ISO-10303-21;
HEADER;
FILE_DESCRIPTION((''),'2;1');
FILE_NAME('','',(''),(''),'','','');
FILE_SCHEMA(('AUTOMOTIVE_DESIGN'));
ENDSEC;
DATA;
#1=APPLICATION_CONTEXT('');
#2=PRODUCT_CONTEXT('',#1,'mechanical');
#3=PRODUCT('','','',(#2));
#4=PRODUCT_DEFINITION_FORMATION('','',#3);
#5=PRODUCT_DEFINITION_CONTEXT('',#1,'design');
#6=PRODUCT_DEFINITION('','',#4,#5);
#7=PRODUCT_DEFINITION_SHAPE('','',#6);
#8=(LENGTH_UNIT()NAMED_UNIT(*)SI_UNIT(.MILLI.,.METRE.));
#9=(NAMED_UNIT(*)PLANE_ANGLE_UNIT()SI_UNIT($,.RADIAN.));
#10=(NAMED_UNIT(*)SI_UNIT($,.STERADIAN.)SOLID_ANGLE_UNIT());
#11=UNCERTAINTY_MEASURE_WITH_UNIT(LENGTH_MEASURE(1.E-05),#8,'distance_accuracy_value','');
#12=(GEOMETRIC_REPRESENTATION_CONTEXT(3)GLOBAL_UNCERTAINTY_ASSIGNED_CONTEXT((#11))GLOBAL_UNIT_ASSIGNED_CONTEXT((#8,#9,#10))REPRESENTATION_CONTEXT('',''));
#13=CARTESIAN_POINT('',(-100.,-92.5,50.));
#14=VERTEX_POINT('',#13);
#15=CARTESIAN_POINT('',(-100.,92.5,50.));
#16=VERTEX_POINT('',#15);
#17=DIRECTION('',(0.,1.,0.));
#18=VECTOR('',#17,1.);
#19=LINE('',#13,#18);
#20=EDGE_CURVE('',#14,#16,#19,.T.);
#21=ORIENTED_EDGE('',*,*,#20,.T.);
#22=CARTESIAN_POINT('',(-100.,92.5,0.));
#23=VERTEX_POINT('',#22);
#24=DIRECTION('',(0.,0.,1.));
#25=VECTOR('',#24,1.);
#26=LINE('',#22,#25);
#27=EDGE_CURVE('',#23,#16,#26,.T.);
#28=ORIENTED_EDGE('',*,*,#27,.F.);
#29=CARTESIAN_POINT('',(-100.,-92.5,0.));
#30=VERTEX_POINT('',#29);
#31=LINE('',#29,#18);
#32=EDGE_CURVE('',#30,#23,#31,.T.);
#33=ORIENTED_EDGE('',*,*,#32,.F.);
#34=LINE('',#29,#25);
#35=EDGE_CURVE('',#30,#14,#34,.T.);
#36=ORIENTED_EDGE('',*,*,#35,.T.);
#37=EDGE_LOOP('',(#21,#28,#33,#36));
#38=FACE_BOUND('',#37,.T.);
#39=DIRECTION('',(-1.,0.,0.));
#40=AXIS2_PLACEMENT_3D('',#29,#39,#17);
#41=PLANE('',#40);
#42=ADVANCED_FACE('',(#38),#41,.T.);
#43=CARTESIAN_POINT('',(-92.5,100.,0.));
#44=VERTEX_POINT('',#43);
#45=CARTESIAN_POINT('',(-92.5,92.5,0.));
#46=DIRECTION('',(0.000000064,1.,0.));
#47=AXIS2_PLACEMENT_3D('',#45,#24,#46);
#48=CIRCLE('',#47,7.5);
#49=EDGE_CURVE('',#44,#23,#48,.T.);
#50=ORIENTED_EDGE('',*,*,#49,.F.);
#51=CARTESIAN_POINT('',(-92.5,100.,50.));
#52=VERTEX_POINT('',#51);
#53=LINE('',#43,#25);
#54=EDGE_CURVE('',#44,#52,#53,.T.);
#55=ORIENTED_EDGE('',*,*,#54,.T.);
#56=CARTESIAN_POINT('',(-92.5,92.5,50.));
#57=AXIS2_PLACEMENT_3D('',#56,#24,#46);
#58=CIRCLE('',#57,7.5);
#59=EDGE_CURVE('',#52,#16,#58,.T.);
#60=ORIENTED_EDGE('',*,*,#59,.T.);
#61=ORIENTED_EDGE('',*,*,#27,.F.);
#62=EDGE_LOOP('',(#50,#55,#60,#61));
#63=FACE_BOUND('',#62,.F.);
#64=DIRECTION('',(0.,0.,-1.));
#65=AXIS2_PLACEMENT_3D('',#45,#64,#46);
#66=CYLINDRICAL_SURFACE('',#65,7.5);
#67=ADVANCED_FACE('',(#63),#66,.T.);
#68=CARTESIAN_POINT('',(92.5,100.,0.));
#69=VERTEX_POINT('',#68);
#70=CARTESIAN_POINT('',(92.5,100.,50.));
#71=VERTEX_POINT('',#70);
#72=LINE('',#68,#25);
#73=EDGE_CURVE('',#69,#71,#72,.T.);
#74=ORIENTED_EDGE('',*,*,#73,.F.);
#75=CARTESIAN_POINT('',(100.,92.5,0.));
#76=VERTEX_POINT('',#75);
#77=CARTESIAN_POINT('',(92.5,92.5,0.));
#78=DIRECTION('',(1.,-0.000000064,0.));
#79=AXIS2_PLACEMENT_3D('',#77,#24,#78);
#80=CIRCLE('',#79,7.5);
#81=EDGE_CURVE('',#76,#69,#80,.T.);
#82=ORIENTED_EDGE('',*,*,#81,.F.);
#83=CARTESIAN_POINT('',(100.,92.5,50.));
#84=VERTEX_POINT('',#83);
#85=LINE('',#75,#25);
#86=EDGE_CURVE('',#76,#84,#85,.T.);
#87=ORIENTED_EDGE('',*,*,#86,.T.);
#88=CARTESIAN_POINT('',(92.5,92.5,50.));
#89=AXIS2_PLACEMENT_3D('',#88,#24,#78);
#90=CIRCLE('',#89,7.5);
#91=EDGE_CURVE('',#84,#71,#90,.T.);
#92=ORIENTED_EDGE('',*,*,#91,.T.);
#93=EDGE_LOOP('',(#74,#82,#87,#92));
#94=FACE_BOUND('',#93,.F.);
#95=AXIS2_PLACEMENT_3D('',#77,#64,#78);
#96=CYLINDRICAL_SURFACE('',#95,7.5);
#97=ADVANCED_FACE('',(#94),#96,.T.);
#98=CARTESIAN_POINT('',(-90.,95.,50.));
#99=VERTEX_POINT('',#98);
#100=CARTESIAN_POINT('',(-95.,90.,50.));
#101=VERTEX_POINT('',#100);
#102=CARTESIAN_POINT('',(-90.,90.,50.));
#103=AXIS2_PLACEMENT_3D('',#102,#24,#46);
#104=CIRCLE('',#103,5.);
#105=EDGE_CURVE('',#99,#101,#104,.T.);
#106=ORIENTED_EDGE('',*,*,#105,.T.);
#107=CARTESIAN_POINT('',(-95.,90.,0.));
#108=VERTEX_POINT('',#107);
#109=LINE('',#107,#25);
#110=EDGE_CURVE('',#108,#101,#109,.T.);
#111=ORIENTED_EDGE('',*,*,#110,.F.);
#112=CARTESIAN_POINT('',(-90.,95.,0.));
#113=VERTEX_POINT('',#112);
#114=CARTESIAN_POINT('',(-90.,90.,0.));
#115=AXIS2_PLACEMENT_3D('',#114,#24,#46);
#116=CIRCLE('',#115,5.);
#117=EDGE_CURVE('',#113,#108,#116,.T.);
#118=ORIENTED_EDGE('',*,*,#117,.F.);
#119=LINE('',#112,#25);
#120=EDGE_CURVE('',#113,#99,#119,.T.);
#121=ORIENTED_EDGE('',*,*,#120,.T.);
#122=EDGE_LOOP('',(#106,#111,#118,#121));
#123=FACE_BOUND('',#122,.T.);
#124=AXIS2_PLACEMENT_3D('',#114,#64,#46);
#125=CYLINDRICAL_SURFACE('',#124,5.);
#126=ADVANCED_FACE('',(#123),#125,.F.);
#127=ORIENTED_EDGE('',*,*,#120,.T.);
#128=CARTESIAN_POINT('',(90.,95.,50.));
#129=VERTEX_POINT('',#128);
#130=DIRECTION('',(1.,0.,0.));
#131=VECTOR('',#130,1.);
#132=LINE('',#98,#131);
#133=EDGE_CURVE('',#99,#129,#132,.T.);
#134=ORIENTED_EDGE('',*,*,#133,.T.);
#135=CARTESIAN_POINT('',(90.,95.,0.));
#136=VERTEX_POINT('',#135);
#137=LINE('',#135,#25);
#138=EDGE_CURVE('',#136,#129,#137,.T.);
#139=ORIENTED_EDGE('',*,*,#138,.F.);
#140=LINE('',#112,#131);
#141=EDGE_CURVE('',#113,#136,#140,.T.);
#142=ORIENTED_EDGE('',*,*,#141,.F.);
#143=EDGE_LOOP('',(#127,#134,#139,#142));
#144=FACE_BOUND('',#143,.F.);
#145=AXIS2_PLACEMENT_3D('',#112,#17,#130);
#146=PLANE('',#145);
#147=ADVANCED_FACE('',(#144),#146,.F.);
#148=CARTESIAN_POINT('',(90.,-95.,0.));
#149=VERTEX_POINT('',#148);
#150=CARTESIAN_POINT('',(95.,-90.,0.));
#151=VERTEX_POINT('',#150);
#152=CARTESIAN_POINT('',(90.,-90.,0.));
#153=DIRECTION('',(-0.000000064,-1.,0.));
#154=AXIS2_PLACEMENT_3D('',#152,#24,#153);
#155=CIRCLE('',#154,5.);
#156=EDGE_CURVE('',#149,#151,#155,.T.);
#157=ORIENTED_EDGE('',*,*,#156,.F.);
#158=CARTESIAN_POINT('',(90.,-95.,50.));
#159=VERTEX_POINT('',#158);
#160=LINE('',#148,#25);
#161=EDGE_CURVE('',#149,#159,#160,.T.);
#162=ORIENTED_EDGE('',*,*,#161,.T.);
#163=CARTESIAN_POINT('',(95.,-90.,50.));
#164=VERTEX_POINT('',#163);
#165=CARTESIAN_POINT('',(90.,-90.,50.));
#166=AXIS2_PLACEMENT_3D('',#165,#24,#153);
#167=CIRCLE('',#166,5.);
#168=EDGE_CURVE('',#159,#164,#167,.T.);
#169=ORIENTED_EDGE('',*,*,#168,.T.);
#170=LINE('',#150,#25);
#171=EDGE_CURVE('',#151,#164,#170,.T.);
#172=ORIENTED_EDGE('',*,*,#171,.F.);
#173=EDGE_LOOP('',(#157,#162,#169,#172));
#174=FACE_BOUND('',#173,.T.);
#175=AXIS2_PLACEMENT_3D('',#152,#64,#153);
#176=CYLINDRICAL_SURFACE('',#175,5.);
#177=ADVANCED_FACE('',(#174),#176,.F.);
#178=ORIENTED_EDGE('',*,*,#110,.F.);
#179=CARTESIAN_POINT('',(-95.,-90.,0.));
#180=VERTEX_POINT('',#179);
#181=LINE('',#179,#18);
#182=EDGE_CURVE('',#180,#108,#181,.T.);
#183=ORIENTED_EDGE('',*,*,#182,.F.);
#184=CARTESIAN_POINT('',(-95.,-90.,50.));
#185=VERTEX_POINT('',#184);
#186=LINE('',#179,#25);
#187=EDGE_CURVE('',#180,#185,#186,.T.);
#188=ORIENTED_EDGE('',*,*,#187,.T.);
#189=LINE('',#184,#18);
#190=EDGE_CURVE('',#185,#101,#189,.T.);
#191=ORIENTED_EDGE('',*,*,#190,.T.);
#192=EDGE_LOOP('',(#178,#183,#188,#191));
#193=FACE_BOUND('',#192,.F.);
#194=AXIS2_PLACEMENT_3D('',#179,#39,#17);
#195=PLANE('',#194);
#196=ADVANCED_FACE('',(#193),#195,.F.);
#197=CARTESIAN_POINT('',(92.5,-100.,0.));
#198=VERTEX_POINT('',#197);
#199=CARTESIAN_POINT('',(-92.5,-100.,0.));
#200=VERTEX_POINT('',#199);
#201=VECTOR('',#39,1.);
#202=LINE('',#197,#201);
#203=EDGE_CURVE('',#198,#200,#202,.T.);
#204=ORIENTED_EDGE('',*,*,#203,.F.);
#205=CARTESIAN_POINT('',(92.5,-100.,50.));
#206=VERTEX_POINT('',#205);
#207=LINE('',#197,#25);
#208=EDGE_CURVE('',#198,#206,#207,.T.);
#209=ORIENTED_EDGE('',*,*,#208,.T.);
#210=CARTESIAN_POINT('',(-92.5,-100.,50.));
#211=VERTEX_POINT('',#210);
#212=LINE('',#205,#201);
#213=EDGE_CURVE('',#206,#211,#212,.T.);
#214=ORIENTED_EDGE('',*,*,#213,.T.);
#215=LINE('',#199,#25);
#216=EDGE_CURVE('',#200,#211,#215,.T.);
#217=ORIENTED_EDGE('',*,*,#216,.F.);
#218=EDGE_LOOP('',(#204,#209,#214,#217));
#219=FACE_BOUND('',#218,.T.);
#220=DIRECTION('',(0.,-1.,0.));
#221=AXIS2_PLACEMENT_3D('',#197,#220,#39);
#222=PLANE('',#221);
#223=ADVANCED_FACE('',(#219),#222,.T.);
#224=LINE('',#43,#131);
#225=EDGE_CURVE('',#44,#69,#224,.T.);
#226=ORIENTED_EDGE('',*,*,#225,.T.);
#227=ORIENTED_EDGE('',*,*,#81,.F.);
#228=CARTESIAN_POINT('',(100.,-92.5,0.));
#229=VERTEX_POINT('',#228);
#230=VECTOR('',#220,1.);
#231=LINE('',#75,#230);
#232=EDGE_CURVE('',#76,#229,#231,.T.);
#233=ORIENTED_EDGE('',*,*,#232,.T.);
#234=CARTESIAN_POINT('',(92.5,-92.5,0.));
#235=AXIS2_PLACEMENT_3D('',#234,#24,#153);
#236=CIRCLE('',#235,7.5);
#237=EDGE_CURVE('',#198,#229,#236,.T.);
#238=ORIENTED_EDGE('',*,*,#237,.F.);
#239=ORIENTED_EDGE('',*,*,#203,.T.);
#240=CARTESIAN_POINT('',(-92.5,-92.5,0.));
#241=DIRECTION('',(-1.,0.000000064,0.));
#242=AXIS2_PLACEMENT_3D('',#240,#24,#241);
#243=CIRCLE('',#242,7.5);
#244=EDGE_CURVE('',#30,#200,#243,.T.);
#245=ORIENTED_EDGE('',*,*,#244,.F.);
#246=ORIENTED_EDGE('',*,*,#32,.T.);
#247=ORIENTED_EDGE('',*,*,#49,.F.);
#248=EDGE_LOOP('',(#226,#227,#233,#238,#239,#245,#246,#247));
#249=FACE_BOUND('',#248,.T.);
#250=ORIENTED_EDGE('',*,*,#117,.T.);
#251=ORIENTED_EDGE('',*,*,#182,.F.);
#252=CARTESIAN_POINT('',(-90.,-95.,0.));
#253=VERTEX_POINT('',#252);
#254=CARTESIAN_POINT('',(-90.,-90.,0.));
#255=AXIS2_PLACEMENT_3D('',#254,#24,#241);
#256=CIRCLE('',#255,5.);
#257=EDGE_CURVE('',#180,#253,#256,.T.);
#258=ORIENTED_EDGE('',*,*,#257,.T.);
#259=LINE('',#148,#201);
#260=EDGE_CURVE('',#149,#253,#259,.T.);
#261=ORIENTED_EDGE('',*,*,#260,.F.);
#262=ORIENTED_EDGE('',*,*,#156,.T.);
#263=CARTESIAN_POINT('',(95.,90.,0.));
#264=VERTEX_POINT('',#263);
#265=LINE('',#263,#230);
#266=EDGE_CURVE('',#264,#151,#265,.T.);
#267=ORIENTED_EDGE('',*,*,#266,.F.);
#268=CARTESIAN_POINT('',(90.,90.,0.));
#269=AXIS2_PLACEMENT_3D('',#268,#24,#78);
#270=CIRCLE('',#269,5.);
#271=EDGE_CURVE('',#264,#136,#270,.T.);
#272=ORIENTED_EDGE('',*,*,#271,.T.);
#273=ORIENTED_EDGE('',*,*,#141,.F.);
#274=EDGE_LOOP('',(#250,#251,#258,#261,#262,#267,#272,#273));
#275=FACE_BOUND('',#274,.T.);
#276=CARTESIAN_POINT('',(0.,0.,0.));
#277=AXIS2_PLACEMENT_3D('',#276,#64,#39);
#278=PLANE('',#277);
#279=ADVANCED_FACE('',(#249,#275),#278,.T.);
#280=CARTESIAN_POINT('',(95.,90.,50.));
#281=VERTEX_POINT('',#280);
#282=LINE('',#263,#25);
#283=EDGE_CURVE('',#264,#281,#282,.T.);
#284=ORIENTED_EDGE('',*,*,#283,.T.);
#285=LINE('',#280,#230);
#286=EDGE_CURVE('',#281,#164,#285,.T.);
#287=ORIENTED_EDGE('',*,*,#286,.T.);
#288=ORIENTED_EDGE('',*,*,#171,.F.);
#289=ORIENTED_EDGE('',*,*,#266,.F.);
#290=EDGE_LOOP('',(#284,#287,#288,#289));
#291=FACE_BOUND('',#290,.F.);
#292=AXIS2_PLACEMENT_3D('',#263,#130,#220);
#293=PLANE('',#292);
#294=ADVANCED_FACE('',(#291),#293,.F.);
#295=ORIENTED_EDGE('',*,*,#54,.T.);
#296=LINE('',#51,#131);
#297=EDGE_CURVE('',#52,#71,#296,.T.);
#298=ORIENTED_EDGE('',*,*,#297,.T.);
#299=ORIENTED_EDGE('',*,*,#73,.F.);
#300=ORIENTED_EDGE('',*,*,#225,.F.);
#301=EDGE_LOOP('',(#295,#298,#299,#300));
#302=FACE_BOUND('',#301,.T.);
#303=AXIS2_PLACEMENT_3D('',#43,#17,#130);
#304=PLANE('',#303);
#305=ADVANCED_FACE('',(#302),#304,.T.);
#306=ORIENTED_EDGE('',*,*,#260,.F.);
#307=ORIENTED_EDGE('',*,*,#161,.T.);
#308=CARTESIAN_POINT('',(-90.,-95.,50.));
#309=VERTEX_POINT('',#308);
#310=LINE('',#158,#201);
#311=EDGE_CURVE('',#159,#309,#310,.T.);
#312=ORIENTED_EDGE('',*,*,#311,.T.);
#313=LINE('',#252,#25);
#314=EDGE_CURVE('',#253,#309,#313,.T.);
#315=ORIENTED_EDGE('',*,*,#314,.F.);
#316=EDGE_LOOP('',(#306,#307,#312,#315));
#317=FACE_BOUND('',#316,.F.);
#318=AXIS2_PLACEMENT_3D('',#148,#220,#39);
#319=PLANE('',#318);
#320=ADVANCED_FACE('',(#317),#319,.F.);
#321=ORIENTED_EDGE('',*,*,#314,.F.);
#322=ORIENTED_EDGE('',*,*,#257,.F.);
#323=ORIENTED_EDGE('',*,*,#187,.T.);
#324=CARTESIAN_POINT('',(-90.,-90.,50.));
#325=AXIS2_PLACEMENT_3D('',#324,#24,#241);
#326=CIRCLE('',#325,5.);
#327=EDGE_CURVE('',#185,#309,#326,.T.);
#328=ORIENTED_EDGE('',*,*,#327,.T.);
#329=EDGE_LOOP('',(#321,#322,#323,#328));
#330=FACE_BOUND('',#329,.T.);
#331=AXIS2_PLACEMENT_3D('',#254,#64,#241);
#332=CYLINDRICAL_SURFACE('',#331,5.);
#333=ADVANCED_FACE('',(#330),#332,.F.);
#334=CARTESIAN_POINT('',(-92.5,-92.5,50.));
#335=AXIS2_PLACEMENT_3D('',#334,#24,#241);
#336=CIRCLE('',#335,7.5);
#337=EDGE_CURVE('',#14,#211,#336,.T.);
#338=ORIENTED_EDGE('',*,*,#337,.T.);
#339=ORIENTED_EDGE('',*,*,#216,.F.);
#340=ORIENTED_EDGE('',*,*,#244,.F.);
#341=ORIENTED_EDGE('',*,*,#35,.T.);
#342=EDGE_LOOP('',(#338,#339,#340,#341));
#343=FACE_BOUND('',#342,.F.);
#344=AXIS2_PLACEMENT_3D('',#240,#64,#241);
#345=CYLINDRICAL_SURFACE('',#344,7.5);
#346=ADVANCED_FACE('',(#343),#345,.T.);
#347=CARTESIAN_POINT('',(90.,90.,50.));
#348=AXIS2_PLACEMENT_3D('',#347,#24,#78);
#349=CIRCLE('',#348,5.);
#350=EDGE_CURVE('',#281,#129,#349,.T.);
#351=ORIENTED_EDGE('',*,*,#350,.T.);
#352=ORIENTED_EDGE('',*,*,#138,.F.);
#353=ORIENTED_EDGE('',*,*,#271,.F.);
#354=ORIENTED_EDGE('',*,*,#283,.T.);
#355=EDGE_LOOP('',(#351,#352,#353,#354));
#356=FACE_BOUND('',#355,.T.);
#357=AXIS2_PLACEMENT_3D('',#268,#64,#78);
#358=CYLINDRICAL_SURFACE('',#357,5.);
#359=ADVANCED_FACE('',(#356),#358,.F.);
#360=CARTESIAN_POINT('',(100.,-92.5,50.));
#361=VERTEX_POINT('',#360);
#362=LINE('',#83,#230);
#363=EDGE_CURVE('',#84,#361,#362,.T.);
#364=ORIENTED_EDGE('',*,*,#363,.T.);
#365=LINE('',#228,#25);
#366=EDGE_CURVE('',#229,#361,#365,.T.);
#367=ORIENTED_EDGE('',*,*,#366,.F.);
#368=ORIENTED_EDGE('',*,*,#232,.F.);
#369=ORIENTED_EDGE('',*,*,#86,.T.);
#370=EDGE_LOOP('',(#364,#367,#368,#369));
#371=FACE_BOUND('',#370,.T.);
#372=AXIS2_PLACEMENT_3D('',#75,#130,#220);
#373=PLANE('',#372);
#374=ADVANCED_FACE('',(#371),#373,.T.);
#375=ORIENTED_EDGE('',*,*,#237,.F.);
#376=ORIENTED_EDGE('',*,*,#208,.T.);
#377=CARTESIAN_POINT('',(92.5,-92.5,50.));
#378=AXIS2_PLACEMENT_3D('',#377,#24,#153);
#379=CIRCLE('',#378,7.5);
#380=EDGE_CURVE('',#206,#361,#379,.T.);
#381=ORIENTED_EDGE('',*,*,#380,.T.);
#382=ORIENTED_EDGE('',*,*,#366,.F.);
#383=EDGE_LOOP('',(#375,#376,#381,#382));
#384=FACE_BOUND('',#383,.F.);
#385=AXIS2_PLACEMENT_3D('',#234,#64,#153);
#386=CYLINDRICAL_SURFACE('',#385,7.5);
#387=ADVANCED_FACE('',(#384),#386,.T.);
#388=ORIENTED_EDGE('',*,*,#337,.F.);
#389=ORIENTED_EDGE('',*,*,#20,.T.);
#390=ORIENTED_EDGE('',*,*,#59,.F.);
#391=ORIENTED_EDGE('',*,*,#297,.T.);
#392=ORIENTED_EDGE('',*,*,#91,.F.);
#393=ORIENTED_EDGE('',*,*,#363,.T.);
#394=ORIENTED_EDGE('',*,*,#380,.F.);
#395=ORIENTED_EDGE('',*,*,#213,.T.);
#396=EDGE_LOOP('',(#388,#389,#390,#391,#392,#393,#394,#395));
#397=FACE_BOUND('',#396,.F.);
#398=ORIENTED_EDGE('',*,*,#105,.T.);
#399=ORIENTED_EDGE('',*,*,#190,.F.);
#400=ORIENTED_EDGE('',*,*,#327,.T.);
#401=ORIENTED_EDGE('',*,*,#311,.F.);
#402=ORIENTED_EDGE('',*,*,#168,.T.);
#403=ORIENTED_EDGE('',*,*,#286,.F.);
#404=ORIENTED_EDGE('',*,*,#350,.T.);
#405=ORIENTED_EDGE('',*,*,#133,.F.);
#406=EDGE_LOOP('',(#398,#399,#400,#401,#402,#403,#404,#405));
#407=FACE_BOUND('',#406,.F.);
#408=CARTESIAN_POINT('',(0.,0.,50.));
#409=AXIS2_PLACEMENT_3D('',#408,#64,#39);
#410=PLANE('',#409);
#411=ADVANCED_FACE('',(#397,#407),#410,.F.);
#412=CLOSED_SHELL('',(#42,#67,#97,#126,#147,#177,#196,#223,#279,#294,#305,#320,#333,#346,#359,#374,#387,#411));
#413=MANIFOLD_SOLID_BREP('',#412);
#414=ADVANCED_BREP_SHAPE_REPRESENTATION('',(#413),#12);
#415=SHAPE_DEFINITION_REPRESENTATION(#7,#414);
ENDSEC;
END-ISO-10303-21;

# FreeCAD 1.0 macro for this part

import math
import FreeCAD as App
import Part
import Sketcher

V = App.Vector

doc = App.newDocument("Part")
body = doc.addObject("PartDesign::Body", "Body")

# Sketch on XY plane
sketch1 = doc.addObject("Sketcher::SketchObject", "Sketch")
body.addObject(sketch1)
sketch1.AttachmentSupport = (doc.XY_Plane, [""])
sketch1.MapMode = "FlatFace"
sketch1.addGeometry(Part.LineSegment(V(92.5, 100, 0), V(-92.5, 100, 0)), False)
sketch1.addGeometry(Part.ArcOfCircle(Part.Circle(V(-92.5, 92.5, 0), V(0, 0, 1), 7.5), math.radians(90), math.radians(180)), False)
sketch1.addGeometry(Part.LineSegment(V(-100, 92.5, 0), V(-100, -92.5, 0)), False)
sketch1.addGeometry(Part.ArcOfCircle(Part.Circle(V(-92.5, -92.5, 0), V(0, 0, 1), 7.5), math.radians(180), math.radians(270)), False)
sketch1.addGeometry(Part.LineSegment(V(-92.5, -100, 0), V(92.5, -100, 0)), False)
sketch1.addGeometry(Part.ArcOfCircle(Part.Circle(V(92.5, -92.5, 0), V(0, 0, 1), 7.5), math.radians(-90), math.radians(0)), False)
sketch1.addGeometry(Part.LineSegment(V(100, -92.5, 0), V(100, 92.5, 0)), False)
sketch1.addGeometry(Part.ArcOfCircle(Part.Circle(V(92.5, 92.5, 0), V(0, 0, 1), 7.5), math.radians(0), math.radians(90)), False)
sketch1.addGeometry(Part.LineSegment(V(-90, 95, 0), V(90, 95, 0)), False)
sketch1.addGeometry(Part.ArcOfCircle(Part.Circle(V(90, 90, 0), V(0, 0, 1), 5), math.radians(0), math.radians(90)), False)
sketch1.addGeometry(Part.LineSegment(V(95, 90, 0), V(95, -90, 0)), False)
sketch1.addGeometry(Part.ArcOfCircle(Part.Circle(V(90, -90, 0), V(0, 0, 1), 5), math.radians(-90), math.radians(0)), False)
sketch1.addGeometry(Part.LineSegment(V(90, -95, 0), V(-90, -95, 0)), False)
sketch1.addGeometry(Part.ArcOfCircle(Part.Circle(V(-90, -90, 0), V(0, 0, 1), 5), math.radians(180), math.radians(270)), False)
sketch1.addGeometry(Part.LineSegment(V(-95, -90, 0), V(-95, 90, 0)), False)
sketch1.addGeometry(Part.ArcOfCircle(Part.Circle(V(-90, 90, 0), V(0, 0, 1), 5), math.radians(90), math.radians(180)), False)
sketch1.addConstraint(Sketcher.Constraint("Tangent", 0, 2, 1, 1))
sketch1.addConstraint(Sketcher.Constraint("Tangent", 1, 2, 2, 1))
sketch1.addConstraint(Sketcher.Constraint("Tangent", 2, 2, 3, 1))
sketch1.addConstraint(Sketcher.Constraint("Tangent", 3, 2, 4, 1))
sketch1.addConstraint(Sketcher.Constraint("Tangent", 4, 2, 5, 1))
sketch1.addConstraint(Sketcher.Constraint("Tangent", 5, 2, 6, 1))
sketch1.addConstraint(Sketcher.Constraint("Tangent", 6, 2, 7, 1))
sketch1.addConstraint(Sketcher.Constraint("Tangent", 7, 2, 0, 1))
sketch1.addConstraint(Sketcher.Constraint("Tangent", 8, 2, 9, 2))
sketch1.addConstraint(Sketcher.Constraint("Tangent", 9, 1, 10, 1))
sketch1.addConstraint(Sketcher.Constraint("Tangent", 10, 2, 11, 2))
sketch1.addConstraint(Sketcher.Constraint("Tangent", 11, 1, 12, 1))
sketch1.addConstraint(Sketcher.Constraint("Tangent", 12, 2, 13, 2))
sketch1.addConstraint(Sketcher.Constraint("Tangent", 13, 1, 14, 1))
sketch1.addConstraint(Sketcher.Constraint("Tangent", 14, 2, 15, 2))
sketch1.addConstraint(Sketcher.Constraint("Tangent", 15, 1, 8, 1))
sketch1.addConstraint(Sketcher.Constraint("Horizontal", 0))
sketch1.addConstraint(Sketcher.Constraint("Vertical", 2))
sketch1.addConstraint(Sketcher.Constraint("Horizontal", 4))
sketch1.addConstraint(Sketcher.Constraint("Vertical", 6))
sketch1.addConstraint(Sketcher.Constraint("Horizontal", 8))
sketch1.addConstraint(Sketcher.Constraint("Vertical", 10))
sketch1.addConstraint(Sketcher.Constraint("Horizontal", 12))
sketch1.addConstraint(Sketcher.Constraint("Vertical", 14))
sketch1.addConstraint(Sketcher.Constraint("Equal", 1, 3))
sketch1.addConstraint(Sketcher.Constraint("Equal", 3, 5))
sketch1.addConstraint(Sketcher.Constraint("Equal", 5, 7))
sketch1.addConstraint(Sketcher.Constraint("Equal", 9, 11))
sketch1.addConstraint(Sketcher.Constraint("Equal", 11, 13))
sketch1.addConstraint(Sketcher.Constraint("Equal", 13, 15))
sketch1.addConstraint(Sketcher.Constraint("Symmetric", 1, 3, 5, 3, -1, 1))
sketch1.addConstraint(Sketcher.Constraint("Symmetric", 9, 3, 13, 3, -1, 1))
sketch1.addConstraint(Sketcher.Constraint("Equal", 4, 2))
sketch1.addConstraint(Sketcher.Constraint("Equal", 12, 10))
sketch1.addConstraint(Sketcher.Constraint("Radius", 9, 5.0))
sketch1.addConstraint(Sketcher.Constraint("Radius", 1, 7.5))
sketch1.addConstraint(Sketcher.Constraint("DistanceX", 0, 2, 0, 1, 185.0))
sketch1.addConstraint(Sketcher.Constraint("DistanceX", 8, 1, 8, 2, 180.0))
pad1 = doc.addObject("PartDesign::Pad", "Pad")
body.addObject(pad1)
pad1.Profile = sketch1
pad1.Length = 50

doc.recompute()
